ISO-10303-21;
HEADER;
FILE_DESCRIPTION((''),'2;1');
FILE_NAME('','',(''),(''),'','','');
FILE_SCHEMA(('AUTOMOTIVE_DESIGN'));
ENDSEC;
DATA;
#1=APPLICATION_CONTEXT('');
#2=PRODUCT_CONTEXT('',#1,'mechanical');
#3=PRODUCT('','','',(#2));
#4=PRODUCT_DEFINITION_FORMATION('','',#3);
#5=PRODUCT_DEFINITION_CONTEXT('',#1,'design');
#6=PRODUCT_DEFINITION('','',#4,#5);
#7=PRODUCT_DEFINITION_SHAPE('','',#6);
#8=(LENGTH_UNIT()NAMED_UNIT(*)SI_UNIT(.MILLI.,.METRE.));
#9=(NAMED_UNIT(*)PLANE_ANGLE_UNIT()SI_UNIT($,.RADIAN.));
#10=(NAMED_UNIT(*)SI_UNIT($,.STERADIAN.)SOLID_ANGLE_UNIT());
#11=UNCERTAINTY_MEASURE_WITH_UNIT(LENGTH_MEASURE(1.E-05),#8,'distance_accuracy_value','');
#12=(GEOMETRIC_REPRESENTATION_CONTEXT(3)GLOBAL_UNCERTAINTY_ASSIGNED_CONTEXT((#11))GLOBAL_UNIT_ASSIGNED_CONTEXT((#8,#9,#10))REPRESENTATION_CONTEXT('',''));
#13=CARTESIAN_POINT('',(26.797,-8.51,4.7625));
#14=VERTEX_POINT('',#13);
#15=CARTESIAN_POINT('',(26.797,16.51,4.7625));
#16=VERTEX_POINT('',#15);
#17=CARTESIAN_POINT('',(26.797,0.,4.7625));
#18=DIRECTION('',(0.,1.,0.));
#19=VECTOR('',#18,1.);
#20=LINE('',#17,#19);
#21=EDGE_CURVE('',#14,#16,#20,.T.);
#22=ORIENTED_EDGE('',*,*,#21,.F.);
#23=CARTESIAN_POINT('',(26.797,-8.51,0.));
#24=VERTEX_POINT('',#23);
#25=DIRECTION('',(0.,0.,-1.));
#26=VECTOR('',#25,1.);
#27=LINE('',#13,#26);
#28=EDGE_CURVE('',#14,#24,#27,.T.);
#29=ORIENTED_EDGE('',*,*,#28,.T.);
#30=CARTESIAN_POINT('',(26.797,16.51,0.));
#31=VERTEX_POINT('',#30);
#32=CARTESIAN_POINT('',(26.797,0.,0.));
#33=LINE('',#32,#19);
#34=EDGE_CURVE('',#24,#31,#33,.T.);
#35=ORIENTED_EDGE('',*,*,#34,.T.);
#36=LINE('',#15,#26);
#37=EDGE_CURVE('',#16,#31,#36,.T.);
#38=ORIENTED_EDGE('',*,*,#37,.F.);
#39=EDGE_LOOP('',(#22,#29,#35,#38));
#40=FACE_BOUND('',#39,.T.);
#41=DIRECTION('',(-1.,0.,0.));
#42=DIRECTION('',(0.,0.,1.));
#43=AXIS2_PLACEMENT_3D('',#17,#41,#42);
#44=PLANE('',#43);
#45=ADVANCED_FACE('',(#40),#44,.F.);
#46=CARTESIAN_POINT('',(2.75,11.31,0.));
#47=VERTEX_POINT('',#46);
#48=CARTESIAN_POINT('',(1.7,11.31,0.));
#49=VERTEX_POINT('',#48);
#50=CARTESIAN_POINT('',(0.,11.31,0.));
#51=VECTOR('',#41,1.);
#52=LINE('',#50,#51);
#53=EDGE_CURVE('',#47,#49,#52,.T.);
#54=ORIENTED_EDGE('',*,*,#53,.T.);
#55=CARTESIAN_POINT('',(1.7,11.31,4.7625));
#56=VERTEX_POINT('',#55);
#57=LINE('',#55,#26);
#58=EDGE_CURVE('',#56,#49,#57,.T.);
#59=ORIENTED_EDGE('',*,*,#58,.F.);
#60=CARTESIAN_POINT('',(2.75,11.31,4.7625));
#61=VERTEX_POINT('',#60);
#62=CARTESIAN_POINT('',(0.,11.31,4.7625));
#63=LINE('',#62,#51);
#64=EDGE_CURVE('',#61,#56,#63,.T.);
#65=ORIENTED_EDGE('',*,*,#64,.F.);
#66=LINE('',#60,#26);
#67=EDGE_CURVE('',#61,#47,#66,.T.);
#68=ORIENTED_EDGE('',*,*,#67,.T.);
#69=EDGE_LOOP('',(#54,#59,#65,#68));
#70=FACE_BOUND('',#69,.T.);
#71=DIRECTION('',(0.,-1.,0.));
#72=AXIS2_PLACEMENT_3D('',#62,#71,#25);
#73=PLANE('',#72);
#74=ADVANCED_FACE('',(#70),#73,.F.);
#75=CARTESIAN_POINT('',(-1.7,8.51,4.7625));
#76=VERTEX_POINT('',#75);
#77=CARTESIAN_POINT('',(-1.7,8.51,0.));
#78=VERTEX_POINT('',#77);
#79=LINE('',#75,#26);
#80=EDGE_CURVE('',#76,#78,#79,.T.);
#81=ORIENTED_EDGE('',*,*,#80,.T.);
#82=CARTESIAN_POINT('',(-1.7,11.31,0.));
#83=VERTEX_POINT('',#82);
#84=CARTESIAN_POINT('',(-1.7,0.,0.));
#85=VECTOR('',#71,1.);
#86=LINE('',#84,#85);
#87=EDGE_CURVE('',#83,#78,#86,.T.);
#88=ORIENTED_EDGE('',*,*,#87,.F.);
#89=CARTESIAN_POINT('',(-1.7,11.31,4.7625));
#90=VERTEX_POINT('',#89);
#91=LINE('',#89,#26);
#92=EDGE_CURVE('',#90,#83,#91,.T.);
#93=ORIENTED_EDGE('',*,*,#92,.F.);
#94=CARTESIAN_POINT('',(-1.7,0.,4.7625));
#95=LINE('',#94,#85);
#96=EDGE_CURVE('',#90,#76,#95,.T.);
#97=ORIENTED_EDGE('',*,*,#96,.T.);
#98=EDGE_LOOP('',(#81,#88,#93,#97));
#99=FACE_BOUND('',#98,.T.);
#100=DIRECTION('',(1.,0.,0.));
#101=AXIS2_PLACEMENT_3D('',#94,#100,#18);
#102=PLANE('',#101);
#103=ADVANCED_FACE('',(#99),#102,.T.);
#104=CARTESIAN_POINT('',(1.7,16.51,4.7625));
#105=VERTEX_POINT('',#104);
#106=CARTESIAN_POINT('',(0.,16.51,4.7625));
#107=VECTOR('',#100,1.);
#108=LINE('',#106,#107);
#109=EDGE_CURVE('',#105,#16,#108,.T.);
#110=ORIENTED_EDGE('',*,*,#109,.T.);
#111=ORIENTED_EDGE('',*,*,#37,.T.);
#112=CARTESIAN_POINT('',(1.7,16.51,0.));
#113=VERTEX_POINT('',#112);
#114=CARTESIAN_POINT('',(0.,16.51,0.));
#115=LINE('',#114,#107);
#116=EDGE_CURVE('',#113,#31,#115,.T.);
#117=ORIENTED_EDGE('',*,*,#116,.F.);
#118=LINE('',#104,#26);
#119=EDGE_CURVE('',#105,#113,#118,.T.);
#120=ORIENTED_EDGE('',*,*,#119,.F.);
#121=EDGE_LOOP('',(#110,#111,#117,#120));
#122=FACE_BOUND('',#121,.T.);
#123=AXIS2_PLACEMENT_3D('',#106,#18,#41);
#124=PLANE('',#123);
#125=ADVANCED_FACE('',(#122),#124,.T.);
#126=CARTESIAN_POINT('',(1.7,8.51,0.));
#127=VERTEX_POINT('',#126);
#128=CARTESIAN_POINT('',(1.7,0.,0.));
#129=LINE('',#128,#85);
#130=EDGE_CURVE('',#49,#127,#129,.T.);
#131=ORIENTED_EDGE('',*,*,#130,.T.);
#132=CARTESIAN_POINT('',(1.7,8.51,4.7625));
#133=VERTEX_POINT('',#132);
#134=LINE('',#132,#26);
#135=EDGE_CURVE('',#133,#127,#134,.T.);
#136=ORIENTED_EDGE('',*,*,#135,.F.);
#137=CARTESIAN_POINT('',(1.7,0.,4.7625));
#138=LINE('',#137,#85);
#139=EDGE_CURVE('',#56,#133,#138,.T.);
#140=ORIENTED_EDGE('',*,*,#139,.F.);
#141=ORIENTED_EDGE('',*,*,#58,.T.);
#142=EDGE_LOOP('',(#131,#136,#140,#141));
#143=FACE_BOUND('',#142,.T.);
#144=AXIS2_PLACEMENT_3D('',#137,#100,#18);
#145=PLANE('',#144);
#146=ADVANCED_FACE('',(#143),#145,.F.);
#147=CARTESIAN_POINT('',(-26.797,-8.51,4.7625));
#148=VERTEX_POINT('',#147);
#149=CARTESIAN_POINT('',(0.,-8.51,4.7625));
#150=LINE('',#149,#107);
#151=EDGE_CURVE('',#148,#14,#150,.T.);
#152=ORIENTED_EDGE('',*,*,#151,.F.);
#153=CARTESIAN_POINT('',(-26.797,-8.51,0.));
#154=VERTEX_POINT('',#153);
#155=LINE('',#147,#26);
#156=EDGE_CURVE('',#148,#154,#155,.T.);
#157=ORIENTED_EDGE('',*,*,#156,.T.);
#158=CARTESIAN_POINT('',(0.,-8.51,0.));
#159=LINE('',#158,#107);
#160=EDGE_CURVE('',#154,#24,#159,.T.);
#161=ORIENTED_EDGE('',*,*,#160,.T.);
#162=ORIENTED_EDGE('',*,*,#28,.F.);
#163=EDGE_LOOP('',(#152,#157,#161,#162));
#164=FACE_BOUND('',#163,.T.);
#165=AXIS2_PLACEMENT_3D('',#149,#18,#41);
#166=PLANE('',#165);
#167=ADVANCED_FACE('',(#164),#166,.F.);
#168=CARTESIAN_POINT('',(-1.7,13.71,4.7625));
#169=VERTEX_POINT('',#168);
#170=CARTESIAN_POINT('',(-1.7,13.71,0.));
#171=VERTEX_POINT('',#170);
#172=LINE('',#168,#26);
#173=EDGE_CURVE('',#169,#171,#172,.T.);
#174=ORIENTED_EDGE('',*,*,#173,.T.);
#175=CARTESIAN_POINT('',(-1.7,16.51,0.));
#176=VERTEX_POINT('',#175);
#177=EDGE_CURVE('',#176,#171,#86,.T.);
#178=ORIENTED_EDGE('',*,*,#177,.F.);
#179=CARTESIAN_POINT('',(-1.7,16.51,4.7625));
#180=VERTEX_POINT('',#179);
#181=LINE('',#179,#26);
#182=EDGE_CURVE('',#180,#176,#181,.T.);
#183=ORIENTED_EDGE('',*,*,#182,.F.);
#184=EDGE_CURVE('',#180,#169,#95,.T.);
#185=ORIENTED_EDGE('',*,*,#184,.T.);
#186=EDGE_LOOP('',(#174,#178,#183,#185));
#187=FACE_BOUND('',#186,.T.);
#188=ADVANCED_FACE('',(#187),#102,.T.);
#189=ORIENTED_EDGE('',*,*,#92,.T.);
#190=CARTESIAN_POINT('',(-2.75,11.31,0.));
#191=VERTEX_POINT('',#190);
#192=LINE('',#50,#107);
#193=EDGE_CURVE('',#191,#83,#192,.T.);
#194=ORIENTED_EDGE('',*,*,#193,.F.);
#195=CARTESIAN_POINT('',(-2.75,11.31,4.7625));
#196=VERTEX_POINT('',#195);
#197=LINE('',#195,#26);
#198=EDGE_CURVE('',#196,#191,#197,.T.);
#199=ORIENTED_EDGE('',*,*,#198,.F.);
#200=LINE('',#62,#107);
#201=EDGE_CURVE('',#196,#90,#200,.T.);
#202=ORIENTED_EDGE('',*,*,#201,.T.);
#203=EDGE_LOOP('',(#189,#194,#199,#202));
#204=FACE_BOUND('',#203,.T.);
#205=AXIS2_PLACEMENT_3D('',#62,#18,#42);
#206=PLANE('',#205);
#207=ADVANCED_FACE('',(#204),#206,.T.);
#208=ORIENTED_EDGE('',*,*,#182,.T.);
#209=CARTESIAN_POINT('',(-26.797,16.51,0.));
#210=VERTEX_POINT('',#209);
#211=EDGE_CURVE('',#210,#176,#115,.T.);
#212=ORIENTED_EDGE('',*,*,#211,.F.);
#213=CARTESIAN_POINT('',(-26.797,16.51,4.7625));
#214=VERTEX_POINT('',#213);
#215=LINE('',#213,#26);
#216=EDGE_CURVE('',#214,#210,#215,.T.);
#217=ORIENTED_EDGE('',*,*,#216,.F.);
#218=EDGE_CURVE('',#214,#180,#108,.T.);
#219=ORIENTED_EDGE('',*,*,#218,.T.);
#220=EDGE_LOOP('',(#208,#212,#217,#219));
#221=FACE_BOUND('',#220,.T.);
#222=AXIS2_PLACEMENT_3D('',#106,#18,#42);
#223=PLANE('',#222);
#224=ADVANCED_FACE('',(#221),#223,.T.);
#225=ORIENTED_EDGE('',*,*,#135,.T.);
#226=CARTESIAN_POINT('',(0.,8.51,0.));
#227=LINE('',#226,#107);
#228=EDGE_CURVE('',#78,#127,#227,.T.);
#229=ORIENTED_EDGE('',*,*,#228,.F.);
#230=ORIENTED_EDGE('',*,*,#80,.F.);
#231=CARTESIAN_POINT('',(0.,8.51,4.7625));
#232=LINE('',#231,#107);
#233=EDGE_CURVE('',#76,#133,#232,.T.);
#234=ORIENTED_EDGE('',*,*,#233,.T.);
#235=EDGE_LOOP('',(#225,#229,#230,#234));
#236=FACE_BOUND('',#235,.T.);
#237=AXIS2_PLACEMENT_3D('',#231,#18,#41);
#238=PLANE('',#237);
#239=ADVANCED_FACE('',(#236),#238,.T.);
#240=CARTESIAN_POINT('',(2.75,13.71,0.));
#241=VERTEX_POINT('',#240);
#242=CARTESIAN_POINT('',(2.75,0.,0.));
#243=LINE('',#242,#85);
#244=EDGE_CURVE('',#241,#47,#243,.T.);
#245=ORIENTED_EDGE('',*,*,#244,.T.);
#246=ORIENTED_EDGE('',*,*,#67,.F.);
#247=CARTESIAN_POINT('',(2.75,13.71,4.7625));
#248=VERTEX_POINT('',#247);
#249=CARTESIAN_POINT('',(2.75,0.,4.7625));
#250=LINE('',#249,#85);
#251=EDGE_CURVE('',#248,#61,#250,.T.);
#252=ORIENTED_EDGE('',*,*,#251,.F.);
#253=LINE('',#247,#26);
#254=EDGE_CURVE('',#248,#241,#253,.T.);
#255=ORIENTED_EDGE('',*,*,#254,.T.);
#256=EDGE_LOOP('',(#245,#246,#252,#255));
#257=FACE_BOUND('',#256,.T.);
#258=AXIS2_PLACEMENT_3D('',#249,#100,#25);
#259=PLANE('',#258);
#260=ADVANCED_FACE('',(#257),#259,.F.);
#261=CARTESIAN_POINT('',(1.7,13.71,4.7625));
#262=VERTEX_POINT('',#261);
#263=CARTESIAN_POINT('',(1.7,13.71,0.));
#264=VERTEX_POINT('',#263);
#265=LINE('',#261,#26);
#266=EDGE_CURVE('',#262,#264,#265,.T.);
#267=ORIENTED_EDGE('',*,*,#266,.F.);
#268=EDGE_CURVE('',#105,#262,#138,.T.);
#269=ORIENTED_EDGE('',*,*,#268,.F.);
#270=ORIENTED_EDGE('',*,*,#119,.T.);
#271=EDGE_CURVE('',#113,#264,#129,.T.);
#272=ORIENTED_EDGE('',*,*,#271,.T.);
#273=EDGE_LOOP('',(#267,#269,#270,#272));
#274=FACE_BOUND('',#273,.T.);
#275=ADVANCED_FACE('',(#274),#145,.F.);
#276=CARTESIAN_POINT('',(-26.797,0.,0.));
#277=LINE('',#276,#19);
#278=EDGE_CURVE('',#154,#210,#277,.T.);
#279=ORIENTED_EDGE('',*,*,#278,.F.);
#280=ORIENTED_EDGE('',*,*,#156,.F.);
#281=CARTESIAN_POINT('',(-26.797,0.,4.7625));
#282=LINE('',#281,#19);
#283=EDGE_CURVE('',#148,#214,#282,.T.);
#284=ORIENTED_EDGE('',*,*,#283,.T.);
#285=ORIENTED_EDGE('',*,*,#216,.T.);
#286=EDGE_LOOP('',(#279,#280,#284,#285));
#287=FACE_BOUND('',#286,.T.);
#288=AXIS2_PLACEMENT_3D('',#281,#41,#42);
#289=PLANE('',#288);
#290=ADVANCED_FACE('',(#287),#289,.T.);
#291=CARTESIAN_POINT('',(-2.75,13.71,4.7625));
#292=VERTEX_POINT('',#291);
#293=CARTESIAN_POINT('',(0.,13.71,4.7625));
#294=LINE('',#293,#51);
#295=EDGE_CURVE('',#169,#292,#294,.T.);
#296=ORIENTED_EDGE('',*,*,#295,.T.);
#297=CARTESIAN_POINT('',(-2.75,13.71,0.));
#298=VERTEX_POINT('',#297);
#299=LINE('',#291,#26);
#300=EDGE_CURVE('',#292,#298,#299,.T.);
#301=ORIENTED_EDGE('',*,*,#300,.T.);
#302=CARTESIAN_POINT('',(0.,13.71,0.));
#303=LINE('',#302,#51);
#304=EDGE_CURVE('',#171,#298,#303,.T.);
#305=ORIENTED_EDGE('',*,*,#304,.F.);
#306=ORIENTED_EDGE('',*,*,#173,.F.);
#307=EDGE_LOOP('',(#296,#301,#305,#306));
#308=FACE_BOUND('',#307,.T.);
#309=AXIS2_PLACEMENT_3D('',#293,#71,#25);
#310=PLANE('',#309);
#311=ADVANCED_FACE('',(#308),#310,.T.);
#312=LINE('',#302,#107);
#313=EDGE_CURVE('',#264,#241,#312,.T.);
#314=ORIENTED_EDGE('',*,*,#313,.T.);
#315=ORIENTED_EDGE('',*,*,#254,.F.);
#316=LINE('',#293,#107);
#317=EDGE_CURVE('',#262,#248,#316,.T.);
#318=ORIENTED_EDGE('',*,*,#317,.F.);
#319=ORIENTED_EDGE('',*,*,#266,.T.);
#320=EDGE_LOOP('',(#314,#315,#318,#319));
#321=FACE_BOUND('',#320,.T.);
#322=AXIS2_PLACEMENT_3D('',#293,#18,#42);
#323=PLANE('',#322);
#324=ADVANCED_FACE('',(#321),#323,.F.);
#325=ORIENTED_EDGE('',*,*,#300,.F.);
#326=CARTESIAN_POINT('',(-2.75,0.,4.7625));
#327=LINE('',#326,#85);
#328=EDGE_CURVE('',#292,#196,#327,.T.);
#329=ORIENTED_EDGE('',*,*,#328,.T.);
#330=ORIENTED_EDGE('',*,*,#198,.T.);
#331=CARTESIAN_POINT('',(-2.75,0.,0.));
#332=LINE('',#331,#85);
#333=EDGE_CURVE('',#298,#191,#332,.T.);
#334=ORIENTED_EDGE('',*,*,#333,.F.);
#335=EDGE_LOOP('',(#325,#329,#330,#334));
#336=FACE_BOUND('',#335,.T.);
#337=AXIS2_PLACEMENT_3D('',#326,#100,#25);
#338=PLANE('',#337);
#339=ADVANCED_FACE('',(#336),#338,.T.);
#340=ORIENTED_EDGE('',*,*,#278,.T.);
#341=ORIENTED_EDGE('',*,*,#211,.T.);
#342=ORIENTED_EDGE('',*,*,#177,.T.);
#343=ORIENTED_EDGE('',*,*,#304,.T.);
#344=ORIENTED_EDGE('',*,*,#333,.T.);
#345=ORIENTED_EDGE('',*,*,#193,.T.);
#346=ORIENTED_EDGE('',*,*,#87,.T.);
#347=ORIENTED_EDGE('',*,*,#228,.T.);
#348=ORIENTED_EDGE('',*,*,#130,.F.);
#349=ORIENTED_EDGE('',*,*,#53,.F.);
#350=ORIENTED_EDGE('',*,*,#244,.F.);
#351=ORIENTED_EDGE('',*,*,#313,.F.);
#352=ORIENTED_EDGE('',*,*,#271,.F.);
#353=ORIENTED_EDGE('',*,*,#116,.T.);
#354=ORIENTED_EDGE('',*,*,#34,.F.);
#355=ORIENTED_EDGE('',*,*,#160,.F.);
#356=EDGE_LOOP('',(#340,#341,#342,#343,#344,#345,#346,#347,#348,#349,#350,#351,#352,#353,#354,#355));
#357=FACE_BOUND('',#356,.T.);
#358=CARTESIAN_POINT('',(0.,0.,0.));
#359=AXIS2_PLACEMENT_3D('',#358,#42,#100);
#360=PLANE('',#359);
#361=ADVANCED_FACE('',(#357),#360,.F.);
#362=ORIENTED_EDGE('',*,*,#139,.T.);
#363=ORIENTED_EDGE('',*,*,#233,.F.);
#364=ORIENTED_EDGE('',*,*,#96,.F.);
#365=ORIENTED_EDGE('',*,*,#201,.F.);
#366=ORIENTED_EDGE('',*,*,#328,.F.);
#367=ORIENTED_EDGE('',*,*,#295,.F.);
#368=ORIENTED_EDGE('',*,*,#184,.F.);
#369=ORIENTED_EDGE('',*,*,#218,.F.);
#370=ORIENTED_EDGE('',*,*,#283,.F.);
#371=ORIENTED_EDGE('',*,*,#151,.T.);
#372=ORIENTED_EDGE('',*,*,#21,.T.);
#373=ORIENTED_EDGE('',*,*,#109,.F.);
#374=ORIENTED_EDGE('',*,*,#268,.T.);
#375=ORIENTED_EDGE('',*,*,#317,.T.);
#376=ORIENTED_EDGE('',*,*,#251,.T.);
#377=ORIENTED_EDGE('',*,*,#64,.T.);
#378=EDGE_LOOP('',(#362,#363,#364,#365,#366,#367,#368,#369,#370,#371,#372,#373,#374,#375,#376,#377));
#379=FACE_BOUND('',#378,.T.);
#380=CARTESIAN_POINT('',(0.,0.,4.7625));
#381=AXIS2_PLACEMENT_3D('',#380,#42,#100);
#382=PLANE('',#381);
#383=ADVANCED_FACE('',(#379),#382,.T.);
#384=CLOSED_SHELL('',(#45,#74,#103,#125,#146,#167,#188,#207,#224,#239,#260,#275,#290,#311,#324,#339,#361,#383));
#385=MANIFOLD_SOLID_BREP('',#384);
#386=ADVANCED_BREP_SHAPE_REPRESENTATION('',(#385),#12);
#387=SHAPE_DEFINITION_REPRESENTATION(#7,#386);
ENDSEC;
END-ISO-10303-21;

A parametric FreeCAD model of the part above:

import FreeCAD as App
import Part
import Sketcher

V = App.Vector


def add_polygon(sketch, points):
    """Adds a closed chain of lines whose ends are joined by coincident constraints."""
    first, n = sketch.GeometryCount, len(points)
    for a, b in zip(points, points[1:] + points[:1]):
        sketch.addGeometry(Part.LineSegment(App.Vector(*a, 0), App.Vector(*b, 0)), False)
    for i in range(n):
        sketch.addConstraint(Sketcher.Constraint("Coincident", first + i, 2, first + (i + 1) % n, 1))

doc = App.newDocument("Part")
body = doc.addObject("PartDesign::Body", "Body")

# Sketch on XY plane
sketch1 = body.newObject("Sketcher::SketchObject", "Sketch")
sketch1.AttachmentSupport = (doc.getObject("XY_Plane"), [""])
sketch1.MapMode = "FlatFace"
add_polygon(sketch1, [(-26.797, 16.51), (-26.797, -8.51), (26.797, -8.51), (26.797, 16.51), (1.7, 16.51), (1.7, 13.71), (2.75, 13.71), (2.75, 11.31), (1.7, 11.31), (1.7, 8.51), (-1.7, 8.51), (-1.7, 11.31), (-2.75, 11.31), (-2.75, 13.71), (-1.7, 13.71), (-1.7, 16.51)])  # lines 0-15
sketch1.addConstraint([
    Sketcher.Constraint("Vertical", 0),
    Sketcher.Constraint("Horizontal", 1),
    Sketcher.Constraint("Vertical", 2),
    Sketcher.Constraint("Horizontal", 3),
    Sketcher.Constraint("Vertical", 4),
    Sketcher.Constraint("Horizontal", 5),
    Sketcher.Constraint("Vertical", 6),
    Sketcher.Constraint("Horizontal", 7),
    Sketcher.Constraint("Vertical", 8),
    Sketcher.Constraint("Horizontal", 9),
    Sketcher.Constraint("Vertical", 10),
    Sketcher.Constraint("Horizontal", 11),
    Sketcher.Constraint("Vertical", 12),
    Sketcher.Constraint("Horizontal", 13),
    Sketcher.Constraint("Vertical", 14),
    Sketcher.Constraint("Horizontal", 15),
    Sketcher.Constraint("Symmetric", 7, 2, 10, 2, -2),
    Sketcher.Constraint("Symmetric", 5, 2, 12, 2, -2),
    Sketcher.Constraint("Symmetric", 3, 2, 14, 2, -2),
    Sketcher.Constraint("Vertical", 4, 2, 7, 2),
    Sketcher.Constraint("Equal", 3, 15),
    Sketcher.Constraint("Equal", 4, 8),
    Sketcher.Constraint("DistanceX", 9, 2, 9, 1, 3.4),
    Sketcher.Constraint("DistanceY", 4, 2, 4, 1, 2.8),
    Sketcher.Constraint("DistanceY", 6, 2, 6, 1, 2.4),
    Sketcher.Constraint("DistanceX", 5, 1, 5, 2, 1.05),
    Sketcher.Constraint("DistanceY", 0, 2, 0, 1, 25.02),
    Sketcher.Constraint("DistanceX", 1, 1, 1, 2, 53.594),
    Sketcher.Constraint("DistanceY", 0, 2, -1, 1, 8.51),
])
pad1 = body.newObject("PartDesign::Pad", "Pad")
pad1.Profile = sketch1
pad1.Length = 4.7625

doc.recompute()
